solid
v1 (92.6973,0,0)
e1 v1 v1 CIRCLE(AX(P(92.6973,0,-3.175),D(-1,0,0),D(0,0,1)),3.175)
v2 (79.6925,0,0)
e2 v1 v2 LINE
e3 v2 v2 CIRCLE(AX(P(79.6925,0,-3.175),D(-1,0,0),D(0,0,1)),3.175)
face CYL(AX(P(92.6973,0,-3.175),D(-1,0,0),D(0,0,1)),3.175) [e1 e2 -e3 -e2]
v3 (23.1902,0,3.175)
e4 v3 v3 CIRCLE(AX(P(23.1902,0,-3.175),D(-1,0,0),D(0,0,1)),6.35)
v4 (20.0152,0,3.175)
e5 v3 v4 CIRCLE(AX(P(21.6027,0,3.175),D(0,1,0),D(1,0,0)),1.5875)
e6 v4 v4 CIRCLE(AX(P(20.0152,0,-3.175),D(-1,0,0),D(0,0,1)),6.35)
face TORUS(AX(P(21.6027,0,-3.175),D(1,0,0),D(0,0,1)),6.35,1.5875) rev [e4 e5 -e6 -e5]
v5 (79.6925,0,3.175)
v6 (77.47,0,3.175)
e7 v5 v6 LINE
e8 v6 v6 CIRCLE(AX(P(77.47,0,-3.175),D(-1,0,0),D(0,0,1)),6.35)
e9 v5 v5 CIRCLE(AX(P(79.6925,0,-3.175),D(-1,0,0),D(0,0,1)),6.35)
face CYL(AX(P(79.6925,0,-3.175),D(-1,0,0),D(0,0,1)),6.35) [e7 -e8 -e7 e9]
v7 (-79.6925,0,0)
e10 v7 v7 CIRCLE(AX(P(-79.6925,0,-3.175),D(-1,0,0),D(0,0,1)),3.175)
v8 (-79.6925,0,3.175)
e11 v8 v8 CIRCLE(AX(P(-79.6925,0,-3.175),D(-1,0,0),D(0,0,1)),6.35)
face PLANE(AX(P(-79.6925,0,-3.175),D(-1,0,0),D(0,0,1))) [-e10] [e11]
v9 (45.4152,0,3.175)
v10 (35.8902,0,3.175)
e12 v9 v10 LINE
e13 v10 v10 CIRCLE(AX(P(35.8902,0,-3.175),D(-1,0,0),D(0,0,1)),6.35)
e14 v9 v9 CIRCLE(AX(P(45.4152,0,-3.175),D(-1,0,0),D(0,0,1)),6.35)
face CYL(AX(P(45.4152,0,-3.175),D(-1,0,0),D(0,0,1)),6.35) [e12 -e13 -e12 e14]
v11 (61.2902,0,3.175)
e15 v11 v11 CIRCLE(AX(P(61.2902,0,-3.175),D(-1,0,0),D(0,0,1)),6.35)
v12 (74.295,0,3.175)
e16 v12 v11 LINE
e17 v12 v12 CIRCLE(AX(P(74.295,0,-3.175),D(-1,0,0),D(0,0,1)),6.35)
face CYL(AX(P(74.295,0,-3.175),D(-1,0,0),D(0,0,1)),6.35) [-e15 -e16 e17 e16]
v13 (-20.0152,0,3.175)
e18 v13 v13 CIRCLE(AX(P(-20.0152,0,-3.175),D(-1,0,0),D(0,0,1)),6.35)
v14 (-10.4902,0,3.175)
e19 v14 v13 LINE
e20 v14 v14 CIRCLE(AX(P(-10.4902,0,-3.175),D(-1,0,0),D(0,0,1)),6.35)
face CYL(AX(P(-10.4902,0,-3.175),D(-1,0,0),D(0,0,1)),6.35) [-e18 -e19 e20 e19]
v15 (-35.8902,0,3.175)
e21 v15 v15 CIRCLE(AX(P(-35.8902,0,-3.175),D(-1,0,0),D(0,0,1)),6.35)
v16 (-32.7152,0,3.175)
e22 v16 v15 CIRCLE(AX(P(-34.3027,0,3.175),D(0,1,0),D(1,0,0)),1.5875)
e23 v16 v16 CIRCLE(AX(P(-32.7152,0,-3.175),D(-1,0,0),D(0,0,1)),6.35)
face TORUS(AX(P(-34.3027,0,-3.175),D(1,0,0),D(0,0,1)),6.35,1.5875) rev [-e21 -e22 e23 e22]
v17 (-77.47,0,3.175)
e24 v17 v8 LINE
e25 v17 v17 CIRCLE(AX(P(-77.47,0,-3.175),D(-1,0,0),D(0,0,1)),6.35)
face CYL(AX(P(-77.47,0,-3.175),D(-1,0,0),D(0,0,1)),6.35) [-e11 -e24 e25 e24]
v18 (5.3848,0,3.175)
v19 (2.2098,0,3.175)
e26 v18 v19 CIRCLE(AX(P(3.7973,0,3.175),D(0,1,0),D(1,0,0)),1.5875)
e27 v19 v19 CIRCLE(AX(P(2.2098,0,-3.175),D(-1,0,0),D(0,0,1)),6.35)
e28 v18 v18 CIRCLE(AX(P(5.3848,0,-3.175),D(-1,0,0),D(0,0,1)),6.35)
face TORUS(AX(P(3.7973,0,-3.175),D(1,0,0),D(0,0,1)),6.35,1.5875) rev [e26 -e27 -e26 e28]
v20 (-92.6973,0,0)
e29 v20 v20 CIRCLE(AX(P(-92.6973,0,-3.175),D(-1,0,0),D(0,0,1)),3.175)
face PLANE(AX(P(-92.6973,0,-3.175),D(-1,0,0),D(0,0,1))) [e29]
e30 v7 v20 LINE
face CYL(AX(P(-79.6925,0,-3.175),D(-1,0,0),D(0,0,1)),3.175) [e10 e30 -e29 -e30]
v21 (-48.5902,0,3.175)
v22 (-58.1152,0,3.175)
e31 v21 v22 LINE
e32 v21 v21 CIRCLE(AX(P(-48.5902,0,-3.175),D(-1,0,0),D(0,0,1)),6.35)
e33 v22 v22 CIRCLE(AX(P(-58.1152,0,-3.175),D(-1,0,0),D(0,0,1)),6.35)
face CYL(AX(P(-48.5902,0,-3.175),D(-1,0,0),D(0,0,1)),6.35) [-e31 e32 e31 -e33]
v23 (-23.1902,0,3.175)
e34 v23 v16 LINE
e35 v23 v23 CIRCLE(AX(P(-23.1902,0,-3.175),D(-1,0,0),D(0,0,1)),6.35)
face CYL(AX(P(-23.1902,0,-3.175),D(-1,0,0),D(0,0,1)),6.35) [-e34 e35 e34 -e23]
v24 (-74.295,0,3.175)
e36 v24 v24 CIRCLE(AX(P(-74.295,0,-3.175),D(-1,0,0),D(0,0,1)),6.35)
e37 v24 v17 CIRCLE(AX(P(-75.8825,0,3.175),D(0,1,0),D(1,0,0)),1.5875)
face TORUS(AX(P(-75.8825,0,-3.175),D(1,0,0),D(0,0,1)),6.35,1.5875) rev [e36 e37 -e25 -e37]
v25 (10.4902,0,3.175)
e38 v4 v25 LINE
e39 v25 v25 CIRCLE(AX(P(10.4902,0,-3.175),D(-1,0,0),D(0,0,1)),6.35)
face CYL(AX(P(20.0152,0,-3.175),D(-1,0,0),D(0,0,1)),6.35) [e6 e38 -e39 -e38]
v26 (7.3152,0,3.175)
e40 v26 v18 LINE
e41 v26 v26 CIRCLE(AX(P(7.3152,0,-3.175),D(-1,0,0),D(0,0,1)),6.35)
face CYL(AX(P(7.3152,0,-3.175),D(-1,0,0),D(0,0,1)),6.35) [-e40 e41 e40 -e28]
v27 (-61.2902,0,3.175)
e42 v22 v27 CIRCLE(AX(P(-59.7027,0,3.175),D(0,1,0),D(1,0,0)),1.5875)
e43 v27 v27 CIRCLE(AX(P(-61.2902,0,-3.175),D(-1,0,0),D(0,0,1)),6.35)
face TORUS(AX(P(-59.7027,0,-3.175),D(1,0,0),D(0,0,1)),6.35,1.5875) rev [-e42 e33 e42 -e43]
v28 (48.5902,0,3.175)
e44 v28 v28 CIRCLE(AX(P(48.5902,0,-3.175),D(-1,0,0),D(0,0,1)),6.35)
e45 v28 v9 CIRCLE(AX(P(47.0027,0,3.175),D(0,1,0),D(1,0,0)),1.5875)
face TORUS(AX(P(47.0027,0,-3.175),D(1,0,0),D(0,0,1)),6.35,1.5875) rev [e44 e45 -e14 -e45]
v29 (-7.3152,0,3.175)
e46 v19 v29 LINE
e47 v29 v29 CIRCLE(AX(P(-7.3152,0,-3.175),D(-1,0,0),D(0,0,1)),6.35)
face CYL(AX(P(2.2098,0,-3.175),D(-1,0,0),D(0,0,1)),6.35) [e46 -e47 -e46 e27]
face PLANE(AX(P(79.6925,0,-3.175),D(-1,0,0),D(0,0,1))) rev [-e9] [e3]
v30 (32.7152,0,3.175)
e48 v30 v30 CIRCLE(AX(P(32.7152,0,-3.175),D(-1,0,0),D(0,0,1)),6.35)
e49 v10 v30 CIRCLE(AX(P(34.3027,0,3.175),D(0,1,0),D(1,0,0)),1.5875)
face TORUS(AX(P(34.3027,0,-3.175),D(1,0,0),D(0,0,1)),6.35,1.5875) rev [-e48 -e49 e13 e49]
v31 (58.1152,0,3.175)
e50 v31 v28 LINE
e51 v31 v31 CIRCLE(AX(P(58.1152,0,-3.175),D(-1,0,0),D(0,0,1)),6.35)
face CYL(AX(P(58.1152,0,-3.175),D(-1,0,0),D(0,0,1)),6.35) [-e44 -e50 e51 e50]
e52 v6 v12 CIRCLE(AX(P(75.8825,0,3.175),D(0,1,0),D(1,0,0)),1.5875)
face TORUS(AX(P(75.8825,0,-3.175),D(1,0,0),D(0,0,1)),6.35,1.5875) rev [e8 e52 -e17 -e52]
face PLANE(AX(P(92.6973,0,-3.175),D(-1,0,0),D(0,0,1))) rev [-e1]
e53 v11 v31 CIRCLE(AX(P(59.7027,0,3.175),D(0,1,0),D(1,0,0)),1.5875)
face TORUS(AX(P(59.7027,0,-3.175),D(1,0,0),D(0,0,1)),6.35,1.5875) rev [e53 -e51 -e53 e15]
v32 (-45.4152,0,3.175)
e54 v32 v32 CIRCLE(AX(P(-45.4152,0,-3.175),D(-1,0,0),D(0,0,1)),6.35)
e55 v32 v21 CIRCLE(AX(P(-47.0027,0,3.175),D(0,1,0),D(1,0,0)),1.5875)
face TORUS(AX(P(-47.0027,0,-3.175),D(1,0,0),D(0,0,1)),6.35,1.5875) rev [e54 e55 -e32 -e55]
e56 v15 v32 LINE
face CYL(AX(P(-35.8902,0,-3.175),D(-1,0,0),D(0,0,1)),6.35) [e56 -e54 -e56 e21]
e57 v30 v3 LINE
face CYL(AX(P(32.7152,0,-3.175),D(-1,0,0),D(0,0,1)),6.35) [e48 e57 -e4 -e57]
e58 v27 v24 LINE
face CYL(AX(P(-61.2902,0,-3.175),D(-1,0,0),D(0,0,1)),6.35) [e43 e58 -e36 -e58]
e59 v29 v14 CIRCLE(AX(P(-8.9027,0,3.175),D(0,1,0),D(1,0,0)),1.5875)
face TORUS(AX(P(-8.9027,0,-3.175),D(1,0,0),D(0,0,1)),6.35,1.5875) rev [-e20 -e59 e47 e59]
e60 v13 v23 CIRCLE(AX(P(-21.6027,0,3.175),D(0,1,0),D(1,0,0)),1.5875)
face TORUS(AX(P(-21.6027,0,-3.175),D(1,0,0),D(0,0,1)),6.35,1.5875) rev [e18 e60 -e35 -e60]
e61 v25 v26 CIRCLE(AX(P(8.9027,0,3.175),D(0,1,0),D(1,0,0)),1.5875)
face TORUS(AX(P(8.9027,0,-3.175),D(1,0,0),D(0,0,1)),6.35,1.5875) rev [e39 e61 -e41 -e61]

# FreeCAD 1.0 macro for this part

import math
import FreeCAD as App
import Part
import Sketcher
Q = App.Units.Quantity

doc = App.newDocument("Part")
body = doc.addObject("PartDesign::Body", "Body")

sketch1 = doc.addObject("Sketcher::SketchObject", "Sketch")
body.addObject(sketch1)
sketch1.AttachmentSupport = (doc.XZ_Plane, [""])
sketch1.MapMode = "FlatFace"
sketch1.addGeometry([
    Part.LineSegment(App.Vector(79.7, 0, 0), App.Vector(79.7, 3.2, 0)),
    Part.LineSegment(App.Vector(79.7, 3.2, 0), App.Vector(77.5, 3.2, 0)),
    Part.ArcOfCircle(Part.Circle(App.Vector(75.9, 3.2, 0), App.Vector(0, 0, 1), 1.6), math.radians(180), math.radians(360)),
    Part.LineSegment(App.Vector(74.3, 3.2, 0), App.Vector(61.3, 3.2, 0)),
    Part.ArcOfCircle(Part.Circle(App.Vector(59.7, 3.2, 0), App.Vector(0, 0, 1), 1.6), math.radians(180), math.radians(360)),
    Part.LineSegment(App.Vector(58.1, 3.2, 0), App.Vector(48.6, 3.2, 0)),
    Part.ArcOfCircle(Part.Circle(App.Vector(47, 3.2, 0), App.Vector(0, 0, 1), 1.6), math.radians(180), math.radians(360)),
    Part.LineSegment(App.Vector(45.4, 3.2, 0), App.Vector(35.9, 3.2, 0)),
    Part.ArcOfCircle(Part.Circle(App.Vector(34.3, 3.2, 0), App.Vector(0, 0, 1), 1.6), math.radians(180), math.radians(360)),
    Part.LineSegment(App.Vector(32.7, 3.2, 0), App.Vector(23.2, 3.2, 0)),
    Part.ArcOfCircle(Part.Circle(App.Vector(21.6, 3.2, 0), App.Vector(0, 0, 1), 1.6), math.radians(180), math.radians(360)),
    Part.LineSegment(App.Vector(20, 3.2, 0), App.Vector(10.5, 3.2, 0)),
    Part.ArcOfCircle(Part.Circle(App.Vector(8.9, 3.2, 0), App.Vector(0, 0, 1), 1.6), math.radians(180), math.radians(360)),
    Part.LineSegment(App.Vector(7.3, 3.2, 0), App.Vector(5.4, 3.2, 0)),
    Part.ArcOfCircle(Part.Circle(App.Vector(3.8, 3.2, 0), App.Vector(0, 0, 1), 1.6), math.radians(180), math.radians(360)),
    Part.LineSegment(App.Vector(2.2, 3.2, 0), App.Vector(-7.3, 3.2, 0)),
    Part.ArcOfCircle(Part.Circle(App.Vector(-8.9, 3.2, 0), App.Vector(0, 0, 1), 1.6), math.radians(180), math.radians(360)),
    Part.LineSegment(App.Vector(-10.5, 3.2, 0), App.Vector(-20, 3.2, 0)),
    Part.ArcOfCircle(Part.Circle(App.Vector(-21.6, 3.2, 0), App.Vector(0, 0, 1), 1.6), math.radians(180), math.radians(360)),
    Part.LineSegment(App.Vector(-23.2, 3.2, 0), App.Vector(-32.7, 3.2, 0)),
    Part.ArcOfCircle(Part.Circle(App.Vector(-34.3, 3.2, 0), App.Vector(0, 0, 1), 1.6), math.radians(180), math.radians(360)),
    Part.LineSegment(App.Vector(-35.9, 3.2, 0), App.Vector(-45.4, 3.2, 0)),
    Part.ArcOfCircle(Part.Circle(App.Vector(-47, 3.2, 0), App.Vector(0, 0, 1), 1.6), math.radians(180), math.radians(360)),
    Part.LineSegment(App.Vector(-48.6, 3.2, 0), App.Vector(-58.1, 3.2, 0)),
    Part.ArcOfCircle(Part.Circle(App.Vector(-59.7, 3.2, 0), App.Vector(0, 0, 1), 1.6), math.radians(180), math.radians(360)),
    Part.LineSegment(App.Vector(-61.3, 3.2, 0), App.Vector(-74.3, 3.2, 0)),
    Part.ArcOfCircle(Part.Circle(App.Vector(-75.9, 3.2, 0), App.Vector(0, 0, 1), 1.6), math.radians(180), math.radians(360)),
    Part.LineSegment(App.Vector(-77.5, 3.2, 0), App.Vector(-79.7, 3.2, 0)),
    Part.LineSegment(App.Vector(-79.7, 3.2, 0), App.Vector(-79.7, 0, 0)),
    Part.LineSegment(App.Vector(-79.7, 0, 0), App.Vector(-92.7, 0, 0)),
    Part.LineSegment(App.Vector(-92.7, 0, 0), App.Vector(-92.7, -3.2, 0)),
    Part.LineSegment(App.Vector(-92.7, -3.2, 0), App.Vector(92.7, -3.2, 0)),
    Part.LineSegment(App.Vector(92.7, -3.2, 0), App.Vector(92.7, 0, 0)),
    Part.LineSegment(App.Vector(92.7, 0, 0), App.Vector(79.7, 0, 0)),
], False)
sketch1.addGeometry(Part.LineSegment(App.Vector(92.7, -3.2, 0), App.Vector(-92.7, -3.2, 0)), True)
sketch1.addConstraint([
    Sketcher.Constraint("Coincident", 0, 2, 1, 1),
    Sketcher.Constraint("Coincident", 1, 2, 2, 2),
    Sketcher.Constraint("Coincident", 2, 1, 3, 1),
    Sketcher.Constraint("Coincident", 3, 2, 4, 2),
    Sketcher.Constraint("Coincident", 4, 1, 5, 1),
    Sketcher.Constraint("Coincident", 5, 2, 6, 2),
    Sketcher.Constraint("Coincident", 6, 1, 7, 1),
    Sketcher.Constraint("Coincident", 7, 2, 8, 2),
    Sketcher.Constraint("Coincident", 8, 1, 9, 1),
    Sketcher.Constraint("Coincident", 9, 2, 10, 2),
    Sketcher.Constraint("Coincident", 10, 1, 11, 1),
    Sketcher.Constraint("Coincident", 11, 2, 12, 2),
    Sketcher.Constraint("Coincident", 12, 1, 13, 1),
    Sketcher.Constraint("Coincident", 13, 2, 14, 2),
    Sketcher.Constraint("Coincident", 14, 1, 15, 1),
    Sketcher.Constraint("Coincident", 15, 2, 16, 2),
    Sketcher.Constraint("Coincident", 16, 1, 17, 1),
    Sketcher.Constraint("Coincident", 17, 2, 18, 2),
    Sketcher.Constraint("Coincident", 18, 1, 19, 1),
    Sketcher.Constraint("Coincident", 19, 2, 20, 2),
    Sketcher.Constraint("Coincident", 20, 1, 21, 1),
    Sketcher.Constraint("Coincident", 21, 2, 22, 2),
    Sketcher.Constraint("Coincident", 22, 1, 23, 1),
    Sketcher.Constraint("Coincident", 23, 2, 24, 2),
    Sketcher.Constraint("Coincident", 24, 1, 25, 1),
    Sketcher.Constraint("Coincident", 25, 2, 26, 2),
    Sketcher.Constraint("Coincident", 26, 1, 27, 1),
    Sketcher.Constraint("Coincident", 27, 2, 28, 1),
    Sketcher.Constraint("Coincident", 28, 2, 29, 1),
    Sketcher.Constraint("Coincident", 29, 2, 30, 1),
    Sketcher.Constraint("Coincident", 30, 2, 31, 1),
    Sketcher.Constraint("Coincident", 31, 2, 32, 1),
    Sketcher.Constraint("Coincident", 32, 2, 33, 1),
    Sketcher.Constraint("Coincident", 33, 2, 0, 1),
    Sketcher.Constraint("Vertical", 0),
    Sketcher.Constraint("Horizontal", 1),
    Sketcher.Constraint("Horizontal", 3),
    Sketcher.Constraint("Horizontal", 5),
    Sketcher.Constraint("Horizontal", 7),
    Sketcher.Constraint("Horizontal", 9),
    Sketcher.Constraint("Horizontal", 11),
    Sketcher.Constraint("Horizontal", 13),
    Sketcher.Constraint("Horizontal", 15),
    Sketcher.Constraint("Horizontal", 17),
    Sketcher.Constraint("Horizontal", 19),
    Sketcher.Constraint("Horizontal", 21),
    Sketcher.Constraint("Horizontal", 23),
    Sketcher.Constraint("Horizontal", 25),
    Sketcher.Constraint("Horizontal", 27),
    Sketcher.Constraint("Vertical", 28),
    Sketcher.Constraint("Horizontal", 29),
    Sketcher.Constraint("Vertical", 30),
    Sketcher.Constraint("Horizontal", 31),
    Sketcher.Constraint("Vertical", 32),
    Sketcher.Constraint("Horizontal", 33),
    Sketcher.Constraint("Horizontal", 34),
    Sketcher.Constraint("Coincident", 34, 1, 31, 2),
    Sketcher.Constraint("Equal", 2, 4),
    Sketcher.Constraint("Equal", 4, 6),
    Sketcher.Constraint("Equal", 6, 8),
    Sketcher.Constraint("Equal", 8, 10),
    Sketcher.Constraint("Equal", 10, 12),
    Sketcher.Constraint("Equal", 12, 14),
    Sketcher.Constraint("Equal", 14, 16),
    Sketcher.Constraint("Equal", 16, 18),
    Sketcher.Constraint("Equal", 18, 20),
    Sketcher.Constraint("Equal", 20, 22),
    Sketcher.Constraint("Equal", 22, 24),
    Sketcher.Constraint("Equal", 24, 26),
    Sketcher.Constraint("Symmetric", 29, 2, 32, 2, -1, 1),
    Sketcher.Constraint("Symmetric", 12, 3, 16, 3, -2),
    Sketcher.Constraint("Symmetric", 10, 3, 18, 3, -2),
    Sketcher.Constraint("Symmetric", 8, 3, 20, 3, -2),
    Sketcher.Constraint("Symmetric", 6, 3, 22, 3, -2),
    Sketcher.Constraint("Symmetric", 4, 3, 24, 3, -2),
    Sketcher.Constraint("Symmetric", 2, 3, 26, 3, -2),
    Sketcher.Constraint("Symmetric", 0, 2, 27, 2, -2),
    Sketcher.Constraint("PointOnObject", 28, 2, -1),
    Sketcher.Constraint("Horizontal", 2, 3, 4, 3),
    Sketcher.Constraint("Horizontal", 4, 3, 6, 3),
    Sketcher.Constraint("Horizontal", 6, 3, 8, 3),
    Sketcher.Constraint("Horizontal", 8, 3, 10, 3),
    Sketcher.Constraint("Horizontal", 10, 3, 12, 3),
    Sketcher.Constraint("Horizontal", 12, 3, 14, 3),
    Sketcher.Constraint("Horizontal", 26, 3, 0, 2),
    Sketcher.Constraint("Horizontal", 1, 2, 2, 1),
    Sketcher.Constraint("Horizontal", 3, 2, 4, 1),
    Sketcher.Constraint("Horizontal", 5, 2, 6, 1),
    Sketcher.Constraint("Horizontal", 7, 2, 8, 1),
    Sketcher.Constraint("Horizontal", 9, 2, 10, 1),
    Sketcher.Constraint("Horizontal", 11, 2, 12, 1),
    Sketcher.Constraint("Horizontal", 13, 2, 14, 1),
    Sketcher.Constraint("Horizontal", 15, 2, 16, 1),
    Sketcher.Constraint("Horizontal", 17, 2, 18, 1),
    Sketcher.Constraint("Horizontal", 19, 2, 20, 1),
    Sketcher.Constraint("Horizontal", 21, 2, 22, 1),
    Sketcher.Constraint("Horizontal", 23, 2, 24, 1),
    Sketcher.Constraint("Vertical", 29, 2, 34, 2),
    Sketcher.Constraint("Equal", 5, 7),
    Sketcher.Constraint("Equal", 7, 9),
    Sketcher.Constraint("Equal", 9, 11),
    Sketcher.Constraint("Equal", 11, 15),
    Sketcher.Constraint("Equal", 25, 29),
    Sketcher.Constraint("Equal", 28, 30),
    Sketcher.Constraint("Radius", 2, Q("0.0625 in")),
    Sketcher.Constraint("DistanceX", 8, 3, 4, 3, Q("1 in")),
    Sketcher.Constraint("DistanceX", 3, 2, 3, 1, Q("0.512 in")),
    Sketcher.Constraint("DistanceX", 13, 2, 13, 1, Q("0.076 in")),
    Sketcher.Constraint("DistanceX", 31, 1, 31, 2, Q("7.299 in")),
    Sketcher.Constraint("DistanceY", 0, 1, 0, 2, Q("0.125 in")),
])
revolution = doc.addObject("PartDesign::Revolution", "Revolution")
body.addObject(revolution)
revolution.Profile = sketch1
revolution.ReferenceAxis = (sketch1, ["Axis0"])
revolution.Angle = 360

doc.recompute()
